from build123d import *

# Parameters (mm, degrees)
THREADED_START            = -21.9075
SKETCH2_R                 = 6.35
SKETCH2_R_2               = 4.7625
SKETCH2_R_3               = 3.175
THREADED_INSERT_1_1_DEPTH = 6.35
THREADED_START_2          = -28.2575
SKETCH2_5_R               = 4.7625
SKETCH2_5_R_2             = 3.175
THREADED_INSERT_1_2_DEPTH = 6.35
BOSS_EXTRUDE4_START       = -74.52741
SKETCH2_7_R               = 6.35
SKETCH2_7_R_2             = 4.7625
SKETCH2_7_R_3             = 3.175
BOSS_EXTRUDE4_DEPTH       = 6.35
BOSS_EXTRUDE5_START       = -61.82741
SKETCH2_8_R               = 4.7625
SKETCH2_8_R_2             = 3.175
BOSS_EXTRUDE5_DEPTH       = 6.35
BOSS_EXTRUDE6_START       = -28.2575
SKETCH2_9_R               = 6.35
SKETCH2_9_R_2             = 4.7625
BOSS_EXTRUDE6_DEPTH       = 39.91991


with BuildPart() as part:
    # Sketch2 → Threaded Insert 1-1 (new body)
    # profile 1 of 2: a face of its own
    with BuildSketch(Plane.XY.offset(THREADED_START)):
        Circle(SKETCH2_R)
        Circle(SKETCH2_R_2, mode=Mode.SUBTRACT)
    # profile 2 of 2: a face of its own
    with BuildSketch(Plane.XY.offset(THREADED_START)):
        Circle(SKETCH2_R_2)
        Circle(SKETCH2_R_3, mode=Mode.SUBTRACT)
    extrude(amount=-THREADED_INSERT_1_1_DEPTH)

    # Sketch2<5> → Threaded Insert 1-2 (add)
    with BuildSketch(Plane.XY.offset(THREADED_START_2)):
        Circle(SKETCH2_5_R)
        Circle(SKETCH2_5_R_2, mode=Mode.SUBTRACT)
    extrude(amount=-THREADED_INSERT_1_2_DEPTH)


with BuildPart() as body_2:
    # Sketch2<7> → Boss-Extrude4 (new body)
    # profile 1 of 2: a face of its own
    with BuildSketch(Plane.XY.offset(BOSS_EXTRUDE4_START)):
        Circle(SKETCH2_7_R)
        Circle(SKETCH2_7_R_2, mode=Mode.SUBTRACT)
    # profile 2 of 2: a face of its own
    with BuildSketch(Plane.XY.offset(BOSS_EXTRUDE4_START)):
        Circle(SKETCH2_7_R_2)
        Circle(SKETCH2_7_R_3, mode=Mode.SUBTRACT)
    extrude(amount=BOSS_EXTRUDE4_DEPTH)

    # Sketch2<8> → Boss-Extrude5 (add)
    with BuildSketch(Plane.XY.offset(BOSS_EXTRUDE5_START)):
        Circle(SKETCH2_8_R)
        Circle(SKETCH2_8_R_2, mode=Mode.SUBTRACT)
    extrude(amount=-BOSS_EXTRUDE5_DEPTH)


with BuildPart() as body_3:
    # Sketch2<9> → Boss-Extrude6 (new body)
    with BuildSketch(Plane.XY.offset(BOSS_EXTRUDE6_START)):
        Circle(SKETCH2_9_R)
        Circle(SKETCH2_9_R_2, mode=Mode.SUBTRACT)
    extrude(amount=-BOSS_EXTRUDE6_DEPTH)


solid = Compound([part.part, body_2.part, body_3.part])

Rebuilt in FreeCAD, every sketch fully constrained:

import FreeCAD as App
import Part
import Sketcher

V = App.Vector
Q = App.Units.Quantity

doc = App.newDocument("Part")
params = doc.addObject("Spreadsheet::Sheet", "Params")
for row, (alias, value) in enumerate([
    ("sketch1_diameter", "0.5 in"),
    ("sketch1_diameter2", "0.25 in"),
    ("pad1_length", "0.25 in"),
    ("sketch2_diameter", "0.25 in"),
    ("sketch2_diameter2", "0.375 in"),
    ("pad2_length", "0.25 in"),
    ("sketch3_diameter", "0.5 in"),
    ("sketch3_diameter2", "0.25 in"),
    ("pad3_length", "0.25 in"),
    ("sketch4_diameter", "0.25 in"),
    ("sketch4_diameter2", "0.375 in"),
    ("pad4_length", "0.25 in"),
    ("sketch5_diameter", "0.5 in"),
    ("sketch5_diameter2", "0.375 in"),
    ("pad5_length", "39.91991 mm"),
], start=1):
    params.set(f"A{row}", alias)
    params.set(f"B{row}", "=" + value)
    params.setAlias(f"B{row}", alias)

body = doc.addObject("PartDesign::Body", "Body")

sketch1 = body.newObject("Sketcher::SketchObject", "Sketch")
sketch1.AttachmentSupport = (doc.getObject("XY_Plane"), [""])
sketch1.MapMode = "FlatFace"
sketch1.AttachmentOffset = App.Placement(V(0, 0, -0.8625 * 25.4), App.Rotation())
sketch1.addGeometry(Part.Circle(V(0, 0, 0), V(0, 0, 1), 6.3), False)
sketch1.addGeometry(Part.Circle(V(0, 0, 0), V(0, 0, 1), 3.2), False)
sketch1.addConstraint(Sketcher.Constraint("Coincident", 0, 3, -1, 1))
sketch1.addConstraint(Sketcher.Constraint("Coincident", 1, 3, -1, 1))
sketch1.addConstraint(Sketcher.Constraint("Diameter", 0, Q("0.5 in")))
sketch1.addConstraint(Sketcher.Constraint("Diameter", 1, Q("0.25 in")))
sketch1.setExpression("Constraints[2]", "Params.sketch1_diameter")
sketch1.setExpression("Constraints[3]", "Params.sketch1_diameter2")
pad1 = body.newObject("PartDesign::Pad", "Pad")
pad1.Profile = sketch1
pad1.setExpression("Length", "Params.pad1_length")
pad1.Reversed = True

sketch2 = body.newObject("Sketcher::SketchObject", "Sketch001")
sketch2.AttachmentSupport = (doc.getObject("XY_Plane"), [""])
sketch2.MapMode = "FlatFace"
sketch2.AttachmentOffset = App.Placement(V(0, 0, -1.1125 * 25.4), App.Rotation())
sketch2.addGeometry(Part.Circle(V(0, 0, 0), V(0, 0, 1), 4.8), False)
sketch2.addGeometry(Part.Circle(V(0, 0, 0), V(0, 0, 1), 3.2), False)
sketch2.addConstraint(Sketcher.Constraint("Coincident", 0, 3, -1, 1))
sketch2.addConstraint(Sketcher.Constraint("Coincident", 1, 3, -1, 1))
sketch2.addConstraint(Sketcher.Constraint("Diameter", 1, Q("0.25 in")))
sketch2.addConstraint(Sketcher.Constraint("Diameter", 0, Q("0.375 in")))
sketch2.setExpression("Constraints[2]", "Params.sketch2_diameter")
sketch2.setExpression("Constraints[3]", "Params.sketch2_diameter2")
pad2 = body.newObject("PartDesign::Pad", "Pad001")
pad2.Profile = sketch2
pad2.setExpression("Length", "Params.pad2_length")
pad2.Reversed = True
body2 = doc.addObject("PartDesign::Body", "Body001")

sketch3 = body2.newObject("Sketcher::SketchObject", "Sketch002")
sketch3.AttachmentSupport = (doc.getObject("XY_Plane001"), [""])
sketch3.MapMode = "FlatFace"
sketch3.AttachmentOffset = App.Placement(V(0, 0, -74.52741), App.Rotation())
sketch3.addGeometry(Part.Circle(V(0, 0, 0), V(0, 0, 1), 6.3), False)
sketch3.addGeometry(Part.Circle(V(0, 0, 0), V(0, 0, 1), 3.2), False)
sketch3.addConstraint(Sketcher.Constraint("Coincident", 0, 3, -1, 1))
sketch3.addConstraint(Sketcher.Constraint("Coincident", 1, 3, -1, 1))
sketch3.addConstraint(Sketcher.Constraint("Diameter", 0, Q("0.5 in")))
sketch3.addConstraint(Sketcher.Constraint("Diameter", 1, Q("0.25 in")))
sketch3.setExpression("Constraints[2]", "Params.sketch3_diameter")
sketch3.setExpression("Constraints[3]", "Params.sketch3_diameter2")
pad3 = body2.newObject("PartDesign::Pad", "Pad002")
pad3.Profile = sketch3
pad3.setExpression("Length", "Params.pad3_length")

sketch4 = body2.newObject("Sketcher::SketchObject", "Sketch003")
sketch4.AttachmentSupport = (doc.getObject("XY_Plane001"), [""])
sketch4.MapMode = "FlatFace"
sketch4.AttachmentOffset = App.Placement(V(0, 0, -61.82741), App.Rotation())
sketch4.addGeometry(Part.Circle(V(0, 0, 0), V(0, 0, 1), 4.8), False)
sketch4.addGeometry(Part.Circle(V(0, 0, 0), V(0, 0, 1), 3.2), False)
sketch4.addConstraint(Sketcher.Constraint("Coincident", 0, 3, -1, 1))
sketch4.addConstraint(Sketcher.Constraint("Coincident", 1, 3, -1, 1))
sketch4.addConstraint(Sketcher.Constraint("Diameter", 1, Q("0.25 in")))
sketch4.addConstraint(Sketcher.Constraint("Diameter", 0, Q("0.375 in")))
sketch4.setExpression("Constraints[2]", "Params.sketch4_diameter")
sketch4.setExpression("Constraints[3]", "Params.sketch4_diameter2")
pad4 = body2.newObject("PartDesign::Pad", "Pad003")
pad4.Profile = sketch4
pad4.setExpression("Length", "Params.pad4_length")
pad4.Reversed = True
body3 = doc.addObject("PartDesign::Body", "Body002")

sketch5 = body3.newObject("Sketcher::SketchObject", "Sketch004")
sketch5.AttachmentSupport = (doc.getObject("XY_Plane002"), [""])
sketch5.MapMode = "FlatFace"
sketch5.AttachmentOffset = App.Placement(V(0, 0, -1.1125 * 25.4), App.Rotation())
sketch5.addGeometry(Part.Circle(V(0, 0, 0), V(0, 0, 1), 6.3), False)
sketch5.addGeometry(Part.Circle(V(0, 0, 0), V(0, 0, 1), 4.8), False)
sketch5.addConstraint(Sketcher.Constraint("Coincident", 0, 3, -1, 1))
sketch5.addConstraint(Sketcher.Constraint("Coincident", 1, 3, -1, 1))
sketch5.addConstraint(Sketcher.Constraint("Diameter", 0, Q("0.5 in")))
sketch5.addConstraint(Sketcher.Constraint("Diameter", 1, Q("0.375 in")))
sketch5.setExpression("Constraints[2]", "Params.sketch5_diameter")
sketch5.setExpression("Constraints[3]", "Params.sketch5_diameter2")
pad5 = body3.newObject("PartDesign::Pad", "Pad004")
pad5.Profile = sketch5
pad5.setExpression("Length", "Params.pad5_length")
pad5.Reversed = True

doc.recompute()
